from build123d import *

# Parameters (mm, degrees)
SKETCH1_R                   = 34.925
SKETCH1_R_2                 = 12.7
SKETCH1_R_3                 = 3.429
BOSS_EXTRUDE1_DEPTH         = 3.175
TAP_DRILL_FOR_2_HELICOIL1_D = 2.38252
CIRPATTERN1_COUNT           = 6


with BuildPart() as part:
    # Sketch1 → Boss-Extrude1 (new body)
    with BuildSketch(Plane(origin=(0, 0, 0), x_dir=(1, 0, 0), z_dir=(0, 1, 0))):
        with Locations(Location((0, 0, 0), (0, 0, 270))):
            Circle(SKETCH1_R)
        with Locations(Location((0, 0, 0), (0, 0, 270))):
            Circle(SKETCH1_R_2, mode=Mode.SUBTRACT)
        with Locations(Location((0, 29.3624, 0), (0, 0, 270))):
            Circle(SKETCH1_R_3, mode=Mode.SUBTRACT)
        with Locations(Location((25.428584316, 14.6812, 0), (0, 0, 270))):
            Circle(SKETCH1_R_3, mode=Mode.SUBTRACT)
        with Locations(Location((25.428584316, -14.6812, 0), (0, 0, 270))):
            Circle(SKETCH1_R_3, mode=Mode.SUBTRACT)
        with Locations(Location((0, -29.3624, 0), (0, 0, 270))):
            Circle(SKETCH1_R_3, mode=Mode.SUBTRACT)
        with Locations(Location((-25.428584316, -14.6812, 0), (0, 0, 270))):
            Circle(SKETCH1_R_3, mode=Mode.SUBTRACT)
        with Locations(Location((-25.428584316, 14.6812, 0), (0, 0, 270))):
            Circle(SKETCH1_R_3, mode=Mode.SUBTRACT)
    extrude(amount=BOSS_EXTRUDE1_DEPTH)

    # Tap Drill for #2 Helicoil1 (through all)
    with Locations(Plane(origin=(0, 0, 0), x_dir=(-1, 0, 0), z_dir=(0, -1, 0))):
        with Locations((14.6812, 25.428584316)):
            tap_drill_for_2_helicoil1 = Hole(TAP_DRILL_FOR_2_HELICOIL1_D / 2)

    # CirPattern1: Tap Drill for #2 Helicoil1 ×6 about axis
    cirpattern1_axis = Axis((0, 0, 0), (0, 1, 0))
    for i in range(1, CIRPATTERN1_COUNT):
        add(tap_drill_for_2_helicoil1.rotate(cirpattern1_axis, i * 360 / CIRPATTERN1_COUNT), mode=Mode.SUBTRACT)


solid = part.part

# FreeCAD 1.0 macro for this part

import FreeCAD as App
import Part
import Sketcher
Q = App.Units.Quantity

doc = App.newDocument("Part")
body = doc.addObject("PartDesign::Body", "Body")

# Sketch on XZ plane
sketch1 = body.newObject("Sketcher::SketchObject", "Sketch")
sketch1.AttachmentSupport = (doc.getObject("XZ_Plane"), [""])
sketch1.MapMode = "FlatFace"
sketch1.addGeometry([
    Part.Circle(App.Vector(0, 0, 0), App.Vector(0, 0, 1), 34.9),  # 0
    Part.Circle(App.Vector(-25.4, -14.7, 0), App.Vector(0, 0, 1), 3.4),  # 1
    Part.Circle(App.Vector(0, -29.4, 0), App.Vector(0, 0, 1), 3.4),  # 2
    Part.Circle(App.Vector(-25.4, 14.7, 0), App.Vector(0, 0, 1), 3.4),  # 3
    Part.Circle(App.Vector(0, 0, 0), App.Vector(0, 0, 1), 12.7),  # 4
    Part.Circle(App.Vector(25.4, -14.7, 0), App.Vector(0, 0, 1), 3.4),  # 5
    Part.Circle(App.Vector(0, 29.4, 0), App.Vector(0, 0, 1), 3.4),  # 6
    Part.Circle(App.Vector(25.4, 14.7, 0), App.Vector(0, 0, 1), 3.4),  # 7
], False)
sketch1.addConstraint([
    Sketcher.Constraint("Coincident", 0, 3, -1, 1),
    Sketcher.Constraint("Coincident", 4, 3, -1, 1),
    Sketcher.Constraint("Equal", 1, 2),
    Sketcher.Constraint("Equal", 2, 3),
    Sketcher.Constraint("Equal", 3, 5),
    Sketcher.Constraint("Equal", 5, 6),
    Sketcher.Constraint("Equal", 6, 7),
    Sketcher.Constraint("Symmetric", 3, 3, 5, 3, -1, 1),
    Sketcher.Constraint("Symmetric", 2, 3, 6, 3, -1, 1),
    Sketcher.Constraint("Symmetric", 1, 3, 7, 3, -1, 1),
    Sketcher.Constraint("Symmetric", 1, 3, 5, 3, -2),
    Sketcher.Constraint("PointOnObject", 2, 3, -2),
    Sketcher.Constraint("Diameter", 4, Q("1 in")),
    Sketcher.Constraint("Diameter", 0, Q("2.75 in")),
    Sketcher.Constraint("Diameter", 1, Q("0.27 in")),
    Sketcher.Constraint("DistanceY", 1, 3, -1, 1, Q("0.578 in")),
    Sketcher.Constraint("DistanceY", 2, 3, -1, 1, Q("1.156 in")),
    Sketcher.Constraint("DistanceX", 1, 3, 5, 3, Q("50.857169 mm")),
])
pad1 = body.newObject("PartDesign::Pad", "Pad")
pad1.Profile = sketch1
pad1.Length = Q("0.125 in")
pad1.Reversed = True

# Sketch on XZ plane
sketch2 = body.newObject("Sketcher::SketchObject", "Sketch001")
sketch2.AttachmentSupport = (doc.getObject("XZ_Plane"), [""])
sketch2.MapMode = "FlatFace"
sketch2.addGeometry(Part.Circle(App.Vector(-14.7, -25.4, 0), App.Vector(0, 0, 1), 1.2), False)
sketch2.addConstraint([
    Sketcher.Constraint("Diameter", 0, Q("0.0938 in")),
    Sketcher.Constraint("DistanceX", 0, 3, -1, 1, Q("0.578 in")),
    Sketcher.Constraint("DistanceY", 0, 3, -1, 1, Q("25.428584 mm")),
])
doc.recompute()
hole = body.newObject("PartDesign::Hole", "Hole")
hole.Profile = sketch2
hole.ThreadType = "None"
hole.Diameter = Q("0.0938 in")
hole.DepthType = "ThroughAll"
doc.recompute()

polarpattern = body.newObject("PartDesign::PolarPattern", "PolarPattern")
polarpattern.Originals = [hole]
polarpattern.Axis = (doc.getObject("Y_Axis"), [""])
polarpattern.Angle = 360
polarpattern.Occurrences = 6
body.Tip = polarpattern

doc.recompute()
